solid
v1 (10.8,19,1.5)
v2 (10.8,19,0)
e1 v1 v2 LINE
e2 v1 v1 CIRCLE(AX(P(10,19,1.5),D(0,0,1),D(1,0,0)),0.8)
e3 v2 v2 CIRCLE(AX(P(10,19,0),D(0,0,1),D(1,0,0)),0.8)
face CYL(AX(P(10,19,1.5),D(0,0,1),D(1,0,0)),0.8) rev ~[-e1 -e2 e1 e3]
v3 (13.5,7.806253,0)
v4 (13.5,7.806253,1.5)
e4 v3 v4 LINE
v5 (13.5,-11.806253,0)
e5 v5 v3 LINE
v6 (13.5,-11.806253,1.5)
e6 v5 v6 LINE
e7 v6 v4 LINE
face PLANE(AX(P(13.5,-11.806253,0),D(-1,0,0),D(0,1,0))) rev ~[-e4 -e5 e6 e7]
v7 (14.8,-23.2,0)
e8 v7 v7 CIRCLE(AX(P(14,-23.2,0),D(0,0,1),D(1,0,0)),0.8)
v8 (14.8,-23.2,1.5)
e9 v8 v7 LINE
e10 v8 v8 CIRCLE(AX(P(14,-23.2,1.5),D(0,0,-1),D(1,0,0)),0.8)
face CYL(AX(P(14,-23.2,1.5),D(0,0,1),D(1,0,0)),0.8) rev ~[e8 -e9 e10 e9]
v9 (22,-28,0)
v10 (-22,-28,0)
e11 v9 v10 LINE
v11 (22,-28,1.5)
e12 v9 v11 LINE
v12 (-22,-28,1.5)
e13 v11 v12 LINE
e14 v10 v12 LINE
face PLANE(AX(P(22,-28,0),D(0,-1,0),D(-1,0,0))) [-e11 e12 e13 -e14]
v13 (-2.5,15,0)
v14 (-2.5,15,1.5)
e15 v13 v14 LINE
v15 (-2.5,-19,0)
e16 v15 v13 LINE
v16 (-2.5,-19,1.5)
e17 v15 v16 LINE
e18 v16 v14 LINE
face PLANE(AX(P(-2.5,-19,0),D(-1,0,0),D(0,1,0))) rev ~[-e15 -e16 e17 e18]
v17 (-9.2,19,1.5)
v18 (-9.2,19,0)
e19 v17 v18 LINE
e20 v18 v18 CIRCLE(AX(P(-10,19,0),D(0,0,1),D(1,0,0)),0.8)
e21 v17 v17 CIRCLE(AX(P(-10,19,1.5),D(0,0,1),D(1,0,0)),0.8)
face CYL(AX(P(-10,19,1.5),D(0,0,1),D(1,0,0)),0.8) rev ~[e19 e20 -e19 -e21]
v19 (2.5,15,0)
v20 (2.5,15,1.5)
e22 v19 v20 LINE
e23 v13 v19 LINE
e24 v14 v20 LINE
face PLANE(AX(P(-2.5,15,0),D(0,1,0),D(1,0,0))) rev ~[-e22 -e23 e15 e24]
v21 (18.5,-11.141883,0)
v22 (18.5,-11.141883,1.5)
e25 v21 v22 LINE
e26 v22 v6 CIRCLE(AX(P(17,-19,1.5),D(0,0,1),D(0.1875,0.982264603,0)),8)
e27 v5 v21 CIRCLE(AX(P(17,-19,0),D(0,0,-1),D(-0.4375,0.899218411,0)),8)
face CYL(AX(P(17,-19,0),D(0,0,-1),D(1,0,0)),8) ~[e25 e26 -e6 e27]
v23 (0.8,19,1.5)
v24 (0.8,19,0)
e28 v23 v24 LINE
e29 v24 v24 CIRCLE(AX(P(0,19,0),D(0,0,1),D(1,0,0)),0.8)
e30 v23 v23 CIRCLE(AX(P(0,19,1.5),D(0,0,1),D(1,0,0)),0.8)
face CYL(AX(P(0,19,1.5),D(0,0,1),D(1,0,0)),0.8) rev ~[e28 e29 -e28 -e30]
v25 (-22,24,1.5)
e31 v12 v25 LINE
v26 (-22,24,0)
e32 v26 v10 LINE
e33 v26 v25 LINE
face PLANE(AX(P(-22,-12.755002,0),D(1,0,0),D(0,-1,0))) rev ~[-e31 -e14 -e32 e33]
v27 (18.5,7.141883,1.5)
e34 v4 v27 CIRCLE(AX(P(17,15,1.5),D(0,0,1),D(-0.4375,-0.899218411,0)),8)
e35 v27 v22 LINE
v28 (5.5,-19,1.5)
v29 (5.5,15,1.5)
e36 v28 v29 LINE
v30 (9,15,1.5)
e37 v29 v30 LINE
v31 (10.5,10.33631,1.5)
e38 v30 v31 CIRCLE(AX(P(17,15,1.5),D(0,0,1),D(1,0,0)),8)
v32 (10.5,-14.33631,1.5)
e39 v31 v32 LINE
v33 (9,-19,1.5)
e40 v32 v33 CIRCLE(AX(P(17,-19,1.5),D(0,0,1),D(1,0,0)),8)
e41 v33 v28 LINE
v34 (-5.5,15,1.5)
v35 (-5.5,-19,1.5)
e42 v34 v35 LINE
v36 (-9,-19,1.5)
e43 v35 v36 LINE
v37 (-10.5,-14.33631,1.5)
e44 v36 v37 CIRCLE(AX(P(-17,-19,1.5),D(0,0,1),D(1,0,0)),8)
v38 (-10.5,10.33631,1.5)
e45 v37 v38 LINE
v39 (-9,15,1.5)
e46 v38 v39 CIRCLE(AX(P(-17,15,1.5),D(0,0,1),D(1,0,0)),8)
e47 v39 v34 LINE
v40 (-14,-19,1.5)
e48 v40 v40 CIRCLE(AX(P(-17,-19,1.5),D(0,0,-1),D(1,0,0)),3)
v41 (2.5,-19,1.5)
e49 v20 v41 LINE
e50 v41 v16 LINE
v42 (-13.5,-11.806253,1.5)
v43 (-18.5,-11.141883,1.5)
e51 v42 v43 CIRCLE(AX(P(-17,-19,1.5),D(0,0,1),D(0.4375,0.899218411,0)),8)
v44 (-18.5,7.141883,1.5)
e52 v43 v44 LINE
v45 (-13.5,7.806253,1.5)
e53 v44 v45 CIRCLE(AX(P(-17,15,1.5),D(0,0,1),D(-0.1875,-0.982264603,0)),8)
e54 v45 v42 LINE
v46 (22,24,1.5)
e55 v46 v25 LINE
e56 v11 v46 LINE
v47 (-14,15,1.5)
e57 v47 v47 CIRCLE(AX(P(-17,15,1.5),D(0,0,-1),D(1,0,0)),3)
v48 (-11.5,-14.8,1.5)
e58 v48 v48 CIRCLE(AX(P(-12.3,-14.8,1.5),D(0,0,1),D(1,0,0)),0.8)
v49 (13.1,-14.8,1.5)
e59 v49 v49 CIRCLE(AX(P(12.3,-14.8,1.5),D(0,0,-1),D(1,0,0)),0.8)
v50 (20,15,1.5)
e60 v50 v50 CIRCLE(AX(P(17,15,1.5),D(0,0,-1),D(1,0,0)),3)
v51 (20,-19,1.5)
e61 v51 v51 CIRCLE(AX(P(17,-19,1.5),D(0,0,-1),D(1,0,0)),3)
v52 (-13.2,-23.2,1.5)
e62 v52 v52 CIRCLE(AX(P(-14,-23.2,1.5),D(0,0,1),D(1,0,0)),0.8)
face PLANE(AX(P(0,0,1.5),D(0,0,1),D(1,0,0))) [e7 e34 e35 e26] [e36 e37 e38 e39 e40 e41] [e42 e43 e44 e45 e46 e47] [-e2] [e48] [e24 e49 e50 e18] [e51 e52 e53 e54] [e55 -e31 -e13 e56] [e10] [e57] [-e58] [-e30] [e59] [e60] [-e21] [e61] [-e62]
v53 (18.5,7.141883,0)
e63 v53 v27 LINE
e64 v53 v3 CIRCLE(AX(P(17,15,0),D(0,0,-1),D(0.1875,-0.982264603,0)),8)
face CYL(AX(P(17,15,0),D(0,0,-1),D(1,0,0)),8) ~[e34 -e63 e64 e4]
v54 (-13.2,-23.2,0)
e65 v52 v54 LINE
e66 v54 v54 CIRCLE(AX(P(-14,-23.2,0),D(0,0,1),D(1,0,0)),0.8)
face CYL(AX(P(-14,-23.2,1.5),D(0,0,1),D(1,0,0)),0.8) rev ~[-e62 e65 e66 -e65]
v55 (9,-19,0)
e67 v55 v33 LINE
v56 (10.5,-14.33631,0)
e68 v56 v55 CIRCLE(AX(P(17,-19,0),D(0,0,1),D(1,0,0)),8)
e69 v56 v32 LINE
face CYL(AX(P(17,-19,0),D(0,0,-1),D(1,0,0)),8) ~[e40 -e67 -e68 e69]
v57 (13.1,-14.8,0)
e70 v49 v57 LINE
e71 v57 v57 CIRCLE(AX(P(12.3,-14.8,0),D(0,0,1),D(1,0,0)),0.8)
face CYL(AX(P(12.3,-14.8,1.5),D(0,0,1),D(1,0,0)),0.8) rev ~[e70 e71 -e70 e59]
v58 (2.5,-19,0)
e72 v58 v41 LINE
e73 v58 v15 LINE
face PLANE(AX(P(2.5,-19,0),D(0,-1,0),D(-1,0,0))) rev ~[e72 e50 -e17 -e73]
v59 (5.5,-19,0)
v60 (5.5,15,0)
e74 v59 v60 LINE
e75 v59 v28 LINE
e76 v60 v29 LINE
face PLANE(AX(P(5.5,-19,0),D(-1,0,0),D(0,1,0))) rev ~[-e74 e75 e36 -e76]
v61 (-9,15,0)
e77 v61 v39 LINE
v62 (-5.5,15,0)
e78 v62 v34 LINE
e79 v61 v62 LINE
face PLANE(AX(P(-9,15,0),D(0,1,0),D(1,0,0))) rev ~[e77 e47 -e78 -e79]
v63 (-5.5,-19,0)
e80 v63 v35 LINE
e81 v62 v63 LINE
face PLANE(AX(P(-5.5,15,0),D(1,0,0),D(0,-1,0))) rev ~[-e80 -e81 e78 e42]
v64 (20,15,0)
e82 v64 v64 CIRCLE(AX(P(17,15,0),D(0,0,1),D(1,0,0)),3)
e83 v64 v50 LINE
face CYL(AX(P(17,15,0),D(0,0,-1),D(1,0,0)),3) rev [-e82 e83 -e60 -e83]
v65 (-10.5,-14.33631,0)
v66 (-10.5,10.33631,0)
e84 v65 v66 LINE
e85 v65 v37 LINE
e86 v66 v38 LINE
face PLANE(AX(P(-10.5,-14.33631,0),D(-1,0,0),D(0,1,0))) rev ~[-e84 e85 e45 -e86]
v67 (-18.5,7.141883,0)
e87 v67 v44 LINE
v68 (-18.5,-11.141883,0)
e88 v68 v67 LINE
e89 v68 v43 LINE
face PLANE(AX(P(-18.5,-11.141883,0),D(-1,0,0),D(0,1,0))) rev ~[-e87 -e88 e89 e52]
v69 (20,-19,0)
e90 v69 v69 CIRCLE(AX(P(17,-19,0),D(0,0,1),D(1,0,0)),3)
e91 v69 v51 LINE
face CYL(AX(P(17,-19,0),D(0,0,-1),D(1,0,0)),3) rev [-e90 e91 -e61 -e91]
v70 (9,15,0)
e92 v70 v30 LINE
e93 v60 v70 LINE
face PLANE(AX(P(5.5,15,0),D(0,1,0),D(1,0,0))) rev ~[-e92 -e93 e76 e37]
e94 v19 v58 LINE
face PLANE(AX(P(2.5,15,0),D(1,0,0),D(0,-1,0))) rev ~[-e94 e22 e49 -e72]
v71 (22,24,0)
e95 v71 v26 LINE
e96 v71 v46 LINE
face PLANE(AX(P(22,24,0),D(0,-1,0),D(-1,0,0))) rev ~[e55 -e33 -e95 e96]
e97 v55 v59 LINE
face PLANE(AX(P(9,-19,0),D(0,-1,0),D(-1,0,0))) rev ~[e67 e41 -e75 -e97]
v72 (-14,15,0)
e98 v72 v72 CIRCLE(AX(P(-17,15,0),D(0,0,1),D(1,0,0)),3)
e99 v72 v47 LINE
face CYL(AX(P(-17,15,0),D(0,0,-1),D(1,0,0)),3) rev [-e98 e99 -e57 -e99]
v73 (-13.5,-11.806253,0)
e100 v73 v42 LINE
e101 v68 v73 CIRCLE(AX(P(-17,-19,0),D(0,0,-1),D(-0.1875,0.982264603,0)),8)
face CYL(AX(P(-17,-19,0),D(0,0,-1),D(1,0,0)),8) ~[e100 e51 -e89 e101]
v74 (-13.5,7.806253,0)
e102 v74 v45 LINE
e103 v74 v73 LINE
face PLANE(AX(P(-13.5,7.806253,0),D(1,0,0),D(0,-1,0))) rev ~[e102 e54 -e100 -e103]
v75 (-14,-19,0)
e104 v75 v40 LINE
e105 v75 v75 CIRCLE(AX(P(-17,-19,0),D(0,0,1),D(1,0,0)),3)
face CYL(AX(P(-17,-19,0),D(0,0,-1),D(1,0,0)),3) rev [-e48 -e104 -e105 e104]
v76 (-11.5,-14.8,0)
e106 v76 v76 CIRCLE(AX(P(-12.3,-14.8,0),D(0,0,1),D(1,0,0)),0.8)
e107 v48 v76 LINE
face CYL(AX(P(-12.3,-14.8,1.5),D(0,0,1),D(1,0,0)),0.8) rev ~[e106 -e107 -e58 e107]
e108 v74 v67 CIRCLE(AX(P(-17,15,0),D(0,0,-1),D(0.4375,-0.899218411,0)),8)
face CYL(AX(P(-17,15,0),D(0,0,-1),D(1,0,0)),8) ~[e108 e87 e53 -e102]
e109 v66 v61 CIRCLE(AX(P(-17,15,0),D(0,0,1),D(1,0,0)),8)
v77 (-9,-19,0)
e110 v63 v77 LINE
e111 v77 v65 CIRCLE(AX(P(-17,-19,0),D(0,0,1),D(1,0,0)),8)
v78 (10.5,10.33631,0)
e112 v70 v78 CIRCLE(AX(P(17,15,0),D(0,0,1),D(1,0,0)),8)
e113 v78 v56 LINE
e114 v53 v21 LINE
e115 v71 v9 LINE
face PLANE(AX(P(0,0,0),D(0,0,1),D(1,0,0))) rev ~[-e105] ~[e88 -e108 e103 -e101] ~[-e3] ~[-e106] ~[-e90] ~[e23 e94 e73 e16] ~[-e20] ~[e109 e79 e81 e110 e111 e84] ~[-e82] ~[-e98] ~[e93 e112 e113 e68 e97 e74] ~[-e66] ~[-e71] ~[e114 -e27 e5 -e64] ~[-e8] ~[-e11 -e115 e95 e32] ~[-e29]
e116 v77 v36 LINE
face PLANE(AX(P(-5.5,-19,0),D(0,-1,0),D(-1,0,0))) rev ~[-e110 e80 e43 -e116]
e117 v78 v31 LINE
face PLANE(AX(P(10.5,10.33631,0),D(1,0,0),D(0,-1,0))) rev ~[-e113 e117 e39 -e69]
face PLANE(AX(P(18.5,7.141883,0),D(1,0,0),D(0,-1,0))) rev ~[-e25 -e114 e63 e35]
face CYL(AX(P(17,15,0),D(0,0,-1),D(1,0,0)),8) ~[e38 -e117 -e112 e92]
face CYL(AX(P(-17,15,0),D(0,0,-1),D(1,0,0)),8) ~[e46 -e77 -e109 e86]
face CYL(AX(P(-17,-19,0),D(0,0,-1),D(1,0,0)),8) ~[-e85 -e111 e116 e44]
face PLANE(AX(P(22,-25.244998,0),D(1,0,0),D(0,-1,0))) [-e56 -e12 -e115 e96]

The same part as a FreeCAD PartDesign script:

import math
import FreeCAD as App
import Part
import Sketcher

V = App.Vector


def add_polygon(sketch, points):
    """Adds a closed chain of lines whose ends are joined by coincident constraints."""
    first, n = sketch.GeometryCount, len(points)
    for a, b in zip(points, points[1:] + points[:1]):
        sketch.addGeometry(Part.LineSegment(App.Vector(*a, 0), App.Vector(*b, 0)), False)
    for i in range(n):
        sketch.addConstraint(Sketcher.Constraint("Coincident", first + i, 2, first + (i + 1) % n, 1))

doc = App.newDocument("Part")
body = doc.addObject("PartDesign::Body", "Body")

# Sketch on XY plane
sketch1 = body.newObject("Sketcher::SketchObject", "Sketch")
sketch1.AttachmentSupport = (doc.getObject("XY_Plane"), [""])
sketch1.MapMode = "FlatFace"
add_polygon(sketch1, [(-22, -28), (22, -28), (22, 24), (-22, 24)])  # lines 0-3
sketch1.addGeometry(Part.Circle(V(-17, -19, 0), V(0, 0, 1), 3), False)  # 4
sketch1.addGeometry(Part.LineSegment(V(-18.5, -11.141883, 0), V(-18.5, 7.141883, 0)), False)  # 5
sketch1.addGeometry(Part.ArcOfCircle(Part.Circle(V(-17, 15, 0), V(0, 0, 1), 8), math.radians(-100.806923), math.radians(-64.05552)), False)  # 6
sketch1.addGeometry(Part.LineSegment(V(-13.5, 7.806253, 0), V(-13.5, -11.806253, 0)), False)  # 7
sketch1.addGeometry(Part.ArcOfCircle(Part.Circle(V(-17, -19, 0), V(0, 0, 1), 8), math.radians(64.05552), math.radians(100.806923)), False)  # 8
sketch1.addGeometry(Part.ArcOfCircle(Part.Circle(V(-17, -19, 0), V(0, 0, 1), 8), math.radians(0), math.radians(35.659088)), False)  # 9
sketch1.addGeometry(Part.LineSegment(V(-10.5, -14.33631, 0), V(-10.5, 10.33631, 0)), False)  # 10
sketch1.addGeometry(Part.ArcOfCircle(Part.Circle(V(-17, 15, 0), V(0, 0, 1), 8), math.radians(-35.659088), math.radians(0)), False)  # 11
sketch1.addGeometry(Part.LineSegment(V(-9, 15, 0), V(-5.5, 15, 0)), False)  # 12
sketch1.addGeometry(Part.LineSegment(V(-5.5, 15, 0), V(-5.5, -19, 0)), False)  # 13
sketch1.addGeometry(Part.LineSegment(V(-5.5, -19, 0), V(-9, -19, 0)), False)  # 14
add_polygon(sketch1, [(2.5, -19), (-2.5, -19), (-2.5, 15), (2.5, 15)])  # lines 15-18
sketch1.addGeometry(Part.LineSegment(V(9, -19, 0), V(5.5, -19, 0)), False)  # 19
sketch1.addGeometry(Part.LineSegment(V(5.5, -19, 0), V(5.5, 15, 0)), False)  # 20
sketch1.addGeometry(Part.LineSegment(V(5.5, 15, 0), V(9, 15, 0)), False)  # 21
sketch1.addGeometry(Part.ArcOfCircle(Part.Circle(V(17, 15, 0), V(0, 0, 1), 8), math.radians(180), math.radians(215.659088)), False)  # 22
sketch1.addGeometry(Part.LineSegment(V(10.5, 10.33631, 0), V(10.5, -14.33631, 0)), False)  # 23
sketch1.addGeometry(Part.ArcOfCircle(Part.Circle(V(17, -19, 0), V(0, 0, 1), 8), math.radians(144.340912), math.radians(180)), False)  # 24
sketch1.addGeometry(Part.Circle(V(-17, 15, 0), V(0, 0, 1), 3), False)  # 25
sketch1.addGeometry(Part.Circle(V(17, -19, 0), V(0, 0, 1), 3), False)  # 26
sketch1.addGeometry(Part.LineSegment(V(13.5, -11.806253, 0), V(13.5, 7.806253, 0)), False)  # 27
sketch1.addGeometry(Part.ArcOfCircle(Part.Circle(V(17, 15, 0), V(0, 0, 1), 8), math.radians(-115.94448), math.radians(-79.193077)), False)  # 28
sketch1.addGeometry(Part.LineSegment(V(18.5, 7.141883, 0), V(18.5, -11.141883, 0)), False)  # 29
sketch1.addGeometry(Part.ArcOfCircle(Part.Circle(V(17, -19, 0), V(0, 0, 1), 8), math.radians(79.193077), math.radians(115.94448)), False)  # 30
sketch1.addGeometry(Part.Circle(V(17, 15, 0), V(0, 0, 1), 3), False)  # 31
sketch1.addConstraint(Sketcher.Constraint("Coincident", 5, 2, 6, 1))
sketch1.addConstraint(Sketcher.Constraint("Coincident", 6, 2, 7, 1))
sketch1.addConstraint(Sketcher.Constraint("Coincident", 7, 2, 8, 1))
sketch1.addConstraint(Sketcher.Constraint("Coincident", 8, 2, 5, 1))
sketch1.addConstraint(Sketcher.Constraint("Coincident", 9, 2, 10, 1))
sketch1.addConstraint(Sketcher.Constraint("Coincident", 10, 2, 11, 1))
sketch1.addConstraint(Sketcher.Constraint("Coincident", 11, 2, 12, 1))
sketch1.addConstraint(Sketcher.Constraint("Coincident", 12, 2, 13, 1))
sketch1.addConstraint(Sketcher.Constraint("Coincident", 13, 2, 14, 1))
sketch1.addConstraint(Sketcher.Constraint("Coincident", 14, 2, 9, 1))
sketch1.addConstraint(Sketcher.Constraint("Coincident", 19, 2, 20, 1))
sketch1.addConstraint(Sketcher.Constraint("Coincident", 20, 2, 21, 1))
sketch1.addConstraint(Sketcher.Constraint("Coincident", 21, 2, 22, 1))
sketch1.addConstraint(Sketcher.Constraint("Coincident", 22, 2, 23, 1))
sketch1.addConstraint(Sketcher.Constraint("Coincident", 23, 2, 24, 1))
sketch1.addConstraint(Sketcher.Constraint("Coincident", 24, 2, 19, 1))
sketch1.addConstraint(Sketcher.Constraint("Coincident", 27, 2, 28, 1))
sketch1.addConstraint(Sketcher.Constraint("Coincident", 28, 2, 29, 1))
sketch1.addConstraint(Sketcher.Constraint("Coincident", 29, 2, 30, 1))
sketch1.addConstraint(Sketcher.Constraint("Coincident", 30, 2, 27, 1))
sketch1.addConstraint(Sketcher.Constraint("Horizontal", 0))
sketch1.addConstraint(Sketcher.Constraint("Vertical", 1))
sketch1.addConstraint(Sketcher.Constraint("Horizontal", 2))
sketch1.addConstraint(Sketcher.Constraint("Vertical", 3))
sketch1.addConstraint(Sketcher.Constraint("Vertical", 5))
sketch1.addConstraint(Sketcher.Constraint("Vertical", 7))
sketch1.addConstraint(Sketcher.Constraint("Vertical", 10))
sketch1.addConstraint(Sketcher.Constraint("Horizontal", 12))
sketch1.addConstraint(Sketcher.Constraint("Vertical", 13))
sketch1.addConstraint(Sketcher.Constraint("Horizontal", 14))
sketch1.addConstraint(Sketcher.Constraint("Horizontal", 15))
sketch1.addConstraint(Sketcher.Constraint("Vertical", 16))
sketch1.addConstraint(Sketcher.Constraint("Horizontal", 17))
sketch1.addConstraint(Sketcher.Constraint("Vertical", 18))
sketch1.addConstraint(Sketcher.Constraint("Horizontal", 19))
sketch1.addConstraint(Sketcher.Constraint("Vertical", 20))
sketch1.addConstraint(Sketcher.Constraint("Horizontal", 21))
sketch1.addConstraint(Sketcher.Constraint("Vertical", 23))
sketch1.addConstraint(Sketcher.Constraint("Vertical", 27))
sketch1.addConstraint(Sketcher.Constraint("Vertical", 29))
sketch1.addConstraint(Sketcher.Constraint("Coincident", 8, 3, 4, 3))
sketch1.addConstraint(Sketcher.Constraint("Coincident", 9, 3, 4, 3))
sketch1.addConstraint(Sketcher.Constraint("Coincident", 11, 3, 6, 3))
sketch1.addConstraint(Sketcher.Constraint("Coincident", 25, 3, 6, 3))
sketch1.addConstraint(Sketcher.Constraint("Coincident", 26, 3, 24, 3))
sketch1.addConstraint(Sketcher.Constraint("Coincident", 28, 3, 22, 3))
sketch1.addConstraint(Sketcher.Constraint("Coincident", 30, 3, 24, 3))
sketch1.addConstraint(Sketcher.Constraint("Coincident", 31, 3, 22, 3))
sketch1.addConstraint(Sketcher.Constraint("Equal", 6, 8))
sketch1.addConstraint(Sketcher.Constraint("Equal", 8, 9))
sketch1.addConstraint(Sketcher.Constraint("Equal", 9, 11))
sketch1.addConstraint(Sketcher.Constraint("Equal", 11, 22))
sketch1.addConstraint(Sketcher.Constraint("Equal", 22, 24))
sketch1.addConstraint(Sketcher.Constraint("Equal", 4, 25))
sketch1.addConstraint(Sketcher.Constraint("Equal", 25, 26))
sketch1.addConstraint(Sketcher.Constraint("Equal", 24, 28))
sketch1.addConstraint(Sketcher.Constraint("Equal", 28, 30))
sketch1.addConstraint(Sketcher.Constraint("Equal", 26, 31))
sketch1.addConstraint(Sketcher.Constraint("Symmetric", 6, 3, 22, 3, -2))
sketch1.addConstraint(Sketcher.Constraint("Symmetric", 4, 3, 24, 3, -2))
sketch1.addConstraint(Sketcher.Constraint("Symmetric", 13, 2, 19, 2, -2))
sketch1.addConstraint(Sketcher.Constraint("Horizontal", 31, 3, 11, 2))
sketch1.addConstraint(Sketcher.Constraint("Horizontal", 30, 3, 13, 2))
sketch1.addConstraint(Sketcher.Constraint("Horizontal", 14, 2, 15, 2))
sketch1.addConstraint(Sketcher.Constraint("Horizontal", 12, 2, 16, 2))
sketch1.addConstraint(Sketcher.Constraint("Horizontal", 17, 2, 20, 2))
sketch1.addConstraint(Sketcher.Constraint("Horizontal", 10, 2, 22, 2))
sketch1.addConstraint(Sketcher.Constraint("Horizontal", 6, 2, 27, 2))
sketch1.addConstraint(Sketcher.Constraint("Horizontal", 5, 2, 28, 2))
sketch1.addConstraint(Sketcher.Constraint("Vertical", 4, 3, 6, 3))
sketch1.addConstraint(Sketcher.Constraint("Diameter", 4, 6.0))
sketch1.addConstraint(Sketcher.Constraint("Radius", 6, 8.0))
sketch1.addConstraint(Sketcher.Constraint("DistanceX", 0, 1, 0, 2, 44.0))
sketch1.addConstraint(Sketcher.Constraint("DistanceX", 15, 2, 15, 1, 5.0))
sketch1.addConstraint(Sketcher.Constraint("DistanceY", 13, 2, 13, 1, 34.0))
sketch1.addConstraint(Sketcher.Constraint("DistanceX", 6, 3, 22, 3, 34.0))
sketch1.addConstraint(Sketcher.Constraint("DistanceX", 24, 3, 0, 2, 5.0))
sketch1.addConstraint(Sketcher.Constraint("DistanceX", 5, 2, 6, 2, 5.0))
sketch1.addConstraint(Sketcher.Constraint("DistanceX", 8, 2, 9, 2, 8.0))
sketch1.addConstraint(Sketcher.Constraint("DistanceX", 10, 2, 12, 2, 5.0))
sketch1.addConstraint(Sketcher.Constraint("DistanceX", 9, 2, 15, 2, 8.0))
sketch1.addConstraint(Sketcher.Constraint("DistanceX", 15, 2, 19, 2, 8.0))
sketch1.addConstraint(Sketcher.Constraint("DistanceY", 1, 1, 1, 2, 52.0))
sketch1.addConstraint(Sketcher.Constraint("DistanceY", 4, 3, -1, 1, 19.0))
sketch1.addConstraint(Sketcher.Constraint("DistanceY", 0, 2, -1, 1, 28.0))
pad1 = body.newObject("PartDesign::Pad", "Pad")
pad1.Profile = sketch1
pad1.Length = 1.5

# Sketch on XY plane
sketch2 = body.newObject("Sketcher::SketchObject", "Sketch001")
sketch2.AttachmentSupport = (doc.getObject("XY_Plane"), [""])
sketch2.MapMode = "FlatFace"
sketch2.AttachmentOffset = App.Placement(V(0, 0, 1.5), App.Rotation())
sketch2.addGeometry(Part.Circle(V(12.3, -14.8, 0), V(0, 0, 1), 0.8), False)
sketch2.addGeometry(Part.Circle(V(14, -23.2, 0), V(0, 0, 1), 0.8), False)
sketch2.addGeometry(Part.Circle(V(-12.3, -14.8, 0), V(0, 0, 1), 0.8), False)
sketch2.addGeometry(Part.Circle(V(-14, -23.2, 0), V(0, 0, 1), 0.8), False)
sketch2.addConstraint(Sketcher.Constraint("Equal", 0, 1))
sketch2.addConstraint(Sketcher.Constraint("Equal", 1, 2))
sketch2.addConstraint(Sketcher.Constraint("Equal", 2, 3))
sketch2.addConstraint(Sketcher.Constraint("Symmetric", 0, 3, 2, 3, -2))
sketch2.addConstraint(Sketcher.Constraint("Symmetric", 1, 3, 3, 3, -2))
sketch2.addConstraint(Sketcher.Constraint("Diameter", 0, 1.6))
sketch2.addConstraint(Sketcher.Constraint("DistanceX", -1, 1, 1, 3, 14.0))
sketch2.addConstraint(Sketcher.Constraint("DistanceX", -1, 1, 0, 3, 12.3))
sketch2.addConstraint(Sketcher.Constraint("DistanceY", 0, 3, -1, 1, 14.8))
sketch2.addConstraint(Sketcher.Constraint("DistanceY", 1, 3, -1, 1, 23.2))
pocket1 = body.newObject("PartDesign::Pocket", "Pocket")
pocket1.Profile = sketch2
pocket1.Length = 1.5

# Sketch on XY plane
sketch3 = body.newObject("Sketcher::SketchObject", "Sketch002")
sketch3.AttachmentSupport = (doc.getObject("XY_Plane"), [""])
sketch3.MapMode = "FlatFace"
sketch3.AttachmentOffset = App.Placement(V(0, 0, 1.5), App.Rotation())
sketch3.addGeometry(Part.Circle(V(0, 19, 0), V(0, 0, 1), 0.8), False)
sketch3.addGeometry(Part.Circle(V(-10, 19, 0), V(0, 0, 1), 0.8), False)
sketch3.addGeometry(Part.Circle(V(10, 19, 0), V(0, 0, 1), 0.8), False)
sketch3.addConstraint(Sketcher.Constraint("Equal", 0, 1))
sketch3.addConstraint(Sketcher.Constraint("Equal", 1, 2))
sketch3.addConstraint(Sketcher.Constraint("Symmetric", 1, 3, 2, 3, -2))
sketch3.addConstraint(Sketcher.Constraint("PointOnObject", 0, 3, -2))
sketch3.addConstraint(Sketcher.Constraint("Horizontal", 0, 3, 1, 3))
sketch3.addConstraint(Sketcher.Constraint("Diameter", 0, 1.6))
sketch3.addConstraint(Sketcher.Constraint("DistanceX", 1, 3, -1, 1, 10.0))
sketch3.addConstraint(Sketcher.Constraint("DistanceY", -1, 1, 0, 3, 19.0))
pocket2 = body.newObject("PartDesign::Pocket", "Pocket001")
pocket2.Profile = sketch3
pocket2.Length = 1.5

doc.recompute()
